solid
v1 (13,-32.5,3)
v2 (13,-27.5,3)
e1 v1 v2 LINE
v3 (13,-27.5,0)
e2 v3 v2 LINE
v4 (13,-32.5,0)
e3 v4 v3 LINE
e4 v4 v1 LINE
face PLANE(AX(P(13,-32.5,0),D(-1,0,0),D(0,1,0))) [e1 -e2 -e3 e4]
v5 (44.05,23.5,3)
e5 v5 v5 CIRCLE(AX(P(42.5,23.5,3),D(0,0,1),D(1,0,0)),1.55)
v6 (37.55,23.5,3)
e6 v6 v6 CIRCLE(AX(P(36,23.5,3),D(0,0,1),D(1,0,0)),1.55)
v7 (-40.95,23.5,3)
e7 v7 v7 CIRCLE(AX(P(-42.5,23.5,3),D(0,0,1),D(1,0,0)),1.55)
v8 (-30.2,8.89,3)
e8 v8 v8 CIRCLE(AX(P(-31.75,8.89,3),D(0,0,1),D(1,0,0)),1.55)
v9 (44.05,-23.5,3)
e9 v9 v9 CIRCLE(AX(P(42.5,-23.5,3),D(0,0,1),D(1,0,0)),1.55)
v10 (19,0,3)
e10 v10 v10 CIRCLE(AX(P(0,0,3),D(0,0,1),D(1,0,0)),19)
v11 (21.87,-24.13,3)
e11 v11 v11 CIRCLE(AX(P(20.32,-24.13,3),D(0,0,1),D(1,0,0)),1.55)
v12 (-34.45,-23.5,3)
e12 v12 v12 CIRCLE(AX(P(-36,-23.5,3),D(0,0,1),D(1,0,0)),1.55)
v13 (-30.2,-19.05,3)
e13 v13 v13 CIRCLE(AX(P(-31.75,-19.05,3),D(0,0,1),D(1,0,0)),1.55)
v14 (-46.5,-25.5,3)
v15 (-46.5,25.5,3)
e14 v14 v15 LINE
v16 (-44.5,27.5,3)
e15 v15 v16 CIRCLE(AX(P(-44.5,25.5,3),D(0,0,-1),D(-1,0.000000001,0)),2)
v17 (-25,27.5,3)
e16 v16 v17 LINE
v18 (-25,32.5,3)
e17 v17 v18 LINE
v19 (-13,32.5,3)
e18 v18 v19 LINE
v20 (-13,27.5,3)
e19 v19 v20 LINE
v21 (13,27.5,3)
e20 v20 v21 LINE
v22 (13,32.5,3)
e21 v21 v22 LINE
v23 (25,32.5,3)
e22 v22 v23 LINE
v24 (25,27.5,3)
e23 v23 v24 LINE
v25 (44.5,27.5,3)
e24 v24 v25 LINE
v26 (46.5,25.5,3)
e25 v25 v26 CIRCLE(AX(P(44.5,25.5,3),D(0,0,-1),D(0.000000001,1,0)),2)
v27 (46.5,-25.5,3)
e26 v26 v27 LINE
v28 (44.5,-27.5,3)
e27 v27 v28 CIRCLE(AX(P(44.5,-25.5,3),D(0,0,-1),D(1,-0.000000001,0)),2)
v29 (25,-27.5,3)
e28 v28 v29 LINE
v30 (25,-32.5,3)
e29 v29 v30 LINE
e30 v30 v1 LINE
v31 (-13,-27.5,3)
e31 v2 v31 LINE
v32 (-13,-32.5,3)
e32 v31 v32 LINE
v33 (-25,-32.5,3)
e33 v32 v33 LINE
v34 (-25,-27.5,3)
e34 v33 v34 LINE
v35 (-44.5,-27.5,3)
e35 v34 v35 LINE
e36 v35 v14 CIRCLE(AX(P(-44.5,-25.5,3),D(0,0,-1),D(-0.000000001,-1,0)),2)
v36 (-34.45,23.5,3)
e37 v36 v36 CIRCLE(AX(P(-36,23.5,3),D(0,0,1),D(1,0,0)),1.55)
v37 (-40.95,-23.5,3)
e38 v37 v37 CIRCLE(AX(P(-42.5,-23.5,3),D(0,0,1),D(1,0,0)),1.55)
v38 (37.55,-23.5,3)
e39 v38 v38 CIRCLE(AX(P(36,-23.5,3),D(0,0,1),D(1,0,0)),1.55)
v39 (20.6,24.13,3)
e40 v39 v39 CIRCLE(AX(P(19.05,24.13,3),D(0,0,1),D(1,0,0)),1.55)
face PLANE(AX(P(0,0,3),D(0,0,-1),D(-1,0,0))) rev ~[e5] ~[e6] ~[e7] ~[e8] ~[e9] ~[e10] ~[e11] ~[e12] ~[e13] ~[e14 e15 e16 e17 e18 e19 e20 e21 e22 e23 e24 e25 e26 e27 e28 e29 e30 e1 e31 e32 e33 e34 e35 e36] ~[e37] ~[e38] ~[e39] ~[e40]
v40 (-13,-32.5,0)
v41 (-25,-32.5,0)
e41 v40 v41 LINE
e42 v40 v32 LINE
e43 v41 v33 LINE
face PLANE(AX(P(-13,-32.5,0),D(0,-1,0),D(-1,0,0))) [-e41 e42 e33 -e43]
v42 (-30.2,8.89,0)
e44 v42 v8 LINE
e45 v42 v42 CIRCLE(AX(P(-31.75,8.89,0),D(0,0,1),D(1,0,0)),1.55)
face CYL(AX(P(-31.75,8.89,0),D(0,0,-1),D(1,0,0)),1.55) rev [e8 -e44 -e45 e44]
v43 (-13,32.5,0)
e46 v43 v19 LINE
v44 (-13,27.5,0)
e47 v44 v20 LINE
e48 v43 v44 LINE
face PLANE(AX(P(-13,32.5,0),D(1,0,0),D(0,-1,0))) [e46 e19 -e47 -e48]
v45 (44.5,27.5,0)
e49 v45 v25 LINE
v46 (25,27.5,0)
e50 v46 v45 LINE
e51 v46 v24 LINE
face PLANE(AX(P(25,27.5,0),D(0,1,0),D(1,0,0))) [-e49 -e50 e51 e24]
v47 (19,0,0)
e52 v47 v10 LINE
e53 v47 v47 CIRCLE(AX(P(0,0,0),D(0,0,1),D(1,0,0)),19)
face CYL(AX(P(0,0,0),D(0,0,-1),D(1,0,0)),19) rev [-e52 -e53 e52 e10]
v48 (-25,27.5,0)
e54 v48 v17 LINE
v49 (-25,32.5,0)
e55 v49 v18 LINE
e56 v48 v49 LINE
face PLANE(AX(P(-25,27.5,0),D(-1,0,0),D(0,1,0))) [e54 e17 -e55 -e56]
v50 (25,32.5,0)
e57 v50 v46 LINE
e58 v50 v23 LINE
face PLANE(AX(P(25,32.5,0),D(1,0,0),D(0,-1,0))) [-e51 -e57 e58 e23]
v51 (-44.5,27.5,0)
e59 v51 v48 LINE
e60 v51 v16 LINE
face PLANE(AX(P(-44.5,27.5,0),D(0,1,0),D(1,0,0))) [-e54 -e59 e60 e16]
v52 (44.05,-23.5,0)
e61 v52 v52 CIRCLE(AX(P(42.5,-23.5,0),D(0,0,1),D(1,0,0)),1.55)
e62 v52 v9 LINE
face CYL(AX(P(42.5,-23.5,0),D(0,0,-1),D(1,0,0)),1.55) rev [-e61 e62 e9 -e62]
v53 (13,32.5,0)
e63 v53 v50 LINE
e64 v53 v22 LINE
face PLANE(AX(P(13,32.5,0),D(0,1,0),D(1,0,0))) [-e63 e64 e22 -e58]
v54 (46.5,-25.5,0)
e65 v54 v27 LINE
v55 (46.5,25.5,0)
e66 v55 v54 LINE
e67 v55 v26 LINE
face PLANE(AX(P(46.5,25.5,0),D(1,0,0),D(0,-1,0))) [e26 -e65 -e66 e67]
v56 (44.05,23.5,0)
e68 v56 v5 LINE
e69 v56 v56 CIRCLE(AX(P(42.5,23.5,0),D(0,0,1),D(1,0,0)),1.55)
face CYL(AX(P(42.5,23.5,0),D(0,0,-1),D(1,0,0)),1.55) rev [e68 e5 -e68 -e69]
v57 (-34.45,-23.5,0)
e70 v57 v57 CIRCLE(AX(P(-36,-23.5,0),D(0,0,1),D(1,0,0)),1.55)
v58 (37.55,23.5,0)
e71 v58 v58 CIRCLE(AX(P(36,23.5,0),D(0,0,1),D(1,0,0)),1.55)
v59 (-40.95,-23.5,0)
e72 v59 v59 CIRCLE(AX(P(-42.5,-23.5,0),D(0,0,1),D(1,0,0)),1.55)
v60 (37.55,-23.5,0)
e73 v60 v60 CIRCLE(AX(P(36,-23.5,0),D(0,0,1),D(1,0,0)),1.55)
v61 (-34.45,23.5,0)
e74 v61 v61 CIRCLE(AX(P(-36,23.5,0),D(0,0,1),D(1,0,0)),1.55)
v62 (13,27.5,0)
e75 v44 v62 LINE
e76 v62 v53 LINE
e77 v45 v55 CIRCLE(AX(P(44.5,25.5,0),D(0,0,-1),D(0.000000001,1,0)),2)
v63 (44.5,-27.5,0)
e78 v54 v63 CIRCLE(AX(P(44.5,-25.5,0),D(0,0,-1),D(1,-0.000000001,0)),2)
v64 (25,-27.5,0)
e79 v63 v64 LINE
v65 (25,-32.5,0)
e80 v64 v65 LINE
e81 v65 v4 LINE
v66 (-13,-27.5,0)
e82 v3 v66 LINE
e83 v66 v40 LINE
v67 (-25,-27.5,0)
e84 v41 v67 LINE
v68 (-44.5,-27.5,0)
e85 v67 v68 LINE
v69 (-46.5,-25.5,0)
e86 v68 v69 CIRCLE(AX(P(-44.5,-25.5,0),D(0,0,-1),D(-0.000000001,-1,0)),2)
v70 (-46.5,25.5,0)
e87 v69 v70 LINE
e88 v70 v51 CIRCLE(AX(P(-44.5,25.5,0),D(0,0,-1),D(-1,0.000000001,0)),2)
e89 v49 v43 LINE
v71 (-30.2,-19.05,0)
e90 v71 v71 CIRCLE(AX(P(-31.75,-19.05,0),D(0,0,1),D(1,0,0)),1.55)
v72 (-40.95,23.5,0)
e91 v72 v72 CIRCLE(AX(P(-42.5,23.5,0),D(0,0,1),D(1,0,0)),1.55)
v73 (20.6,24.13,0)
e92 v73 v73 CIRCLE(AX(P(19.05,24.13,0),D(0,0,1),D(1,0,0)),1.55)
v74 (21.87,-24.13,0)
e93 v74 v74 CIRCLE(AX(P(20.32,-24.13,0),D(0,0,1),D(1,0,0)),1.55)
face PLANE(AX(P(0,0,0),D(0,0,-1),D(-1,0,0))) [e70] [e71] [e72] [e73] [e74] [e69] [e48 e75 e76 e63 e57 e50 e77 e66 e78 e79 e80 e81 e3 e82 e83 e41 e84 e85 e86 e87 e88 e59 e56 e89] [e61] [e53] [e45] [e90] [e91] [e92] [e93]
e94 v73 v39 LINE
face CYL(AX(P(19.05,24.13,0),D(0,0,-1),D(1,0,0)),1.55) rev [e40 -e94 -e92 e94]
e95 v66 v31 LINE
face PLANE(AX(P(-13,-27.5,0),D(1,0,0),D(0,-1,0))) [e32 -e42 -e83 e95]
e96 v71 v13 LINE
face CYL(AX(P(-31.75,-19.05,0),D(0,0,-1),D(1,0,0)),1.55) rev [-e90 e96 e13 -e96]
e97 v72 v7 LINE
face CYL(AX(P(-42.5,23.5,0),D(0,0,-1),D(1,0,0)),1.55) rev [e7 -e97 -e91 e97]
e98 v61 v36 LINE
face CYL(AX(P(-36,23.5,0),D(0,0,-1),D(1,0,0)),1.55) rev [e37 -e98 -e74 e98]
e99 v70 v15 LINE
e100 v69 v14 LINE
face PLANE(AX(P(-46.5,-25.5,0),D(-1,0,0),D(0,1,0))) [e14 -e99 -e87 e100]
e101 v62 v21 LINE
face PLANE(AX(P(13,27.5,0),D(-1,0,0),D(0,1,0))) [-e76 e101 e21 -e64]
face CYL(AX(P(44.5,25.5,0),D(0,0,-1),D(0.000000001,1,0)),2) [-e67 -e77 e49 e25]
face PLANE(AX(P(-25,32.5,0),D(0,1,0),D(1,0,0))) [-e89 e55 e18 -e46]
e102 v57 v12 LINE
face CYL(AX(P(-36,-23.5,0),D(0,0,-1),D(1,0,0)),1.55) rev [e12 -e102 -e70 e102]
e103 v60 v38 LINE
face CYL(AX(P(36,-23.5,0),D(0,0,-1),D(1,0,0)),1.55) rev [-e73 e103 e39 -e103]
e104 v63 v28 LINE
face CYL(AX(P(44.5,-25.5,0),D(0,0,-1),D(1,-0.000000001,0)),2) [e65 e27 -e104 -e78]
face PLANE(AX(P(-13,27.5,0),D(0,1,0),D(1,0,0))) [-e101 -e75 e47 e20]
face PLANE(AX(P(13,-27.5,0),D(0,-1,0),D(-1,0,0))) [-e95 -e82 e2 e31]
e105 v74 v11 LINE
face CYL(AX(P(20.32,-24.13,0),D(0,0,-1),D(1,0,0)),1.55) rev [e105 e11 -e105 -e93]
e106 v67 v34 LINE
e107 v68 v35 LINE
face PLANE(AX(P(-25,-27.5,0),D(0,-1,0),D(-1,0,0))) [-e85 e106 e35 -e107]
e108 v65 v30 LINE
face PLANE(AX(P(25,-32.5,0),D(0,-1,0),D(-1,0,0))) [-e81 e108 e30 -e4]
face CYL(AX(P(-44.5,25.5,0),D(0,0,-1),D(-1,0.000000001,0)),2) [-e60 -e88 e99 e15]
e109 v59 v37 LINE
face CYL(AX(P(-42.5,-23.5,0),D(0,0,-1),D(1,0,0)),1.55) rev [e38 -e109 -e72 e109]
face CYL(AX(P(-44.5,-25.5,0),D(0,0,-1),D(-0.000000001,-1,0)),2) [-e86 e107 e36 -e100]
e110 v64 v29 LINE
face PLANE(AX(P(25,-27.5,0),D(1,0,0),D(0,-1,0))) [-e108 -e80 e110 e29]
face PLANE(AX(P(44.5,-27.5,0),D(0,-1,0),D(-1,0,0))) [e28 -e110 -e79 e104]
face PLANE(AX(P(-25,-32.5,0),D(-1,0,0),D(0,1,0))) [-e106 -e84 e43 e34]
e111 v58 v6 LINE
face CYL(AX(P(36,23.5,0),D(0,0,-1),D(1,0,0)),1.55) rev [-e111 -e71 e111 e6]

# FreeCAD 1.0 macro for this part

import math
import FreeCAD as App
import Part
import Sketcher

doc = App.newDocument("Part")
body = doc.addObject("PartDesign::Body", "Body")

sketch1 = body.newObject("Sketcher::SketchObject", "Sketch")
sketch1.AttachmentSupport = (doc.getObject("XY_Plane"), [""])
sketch1.MapMode = "FlatFace"
sketch1.addGeometry([
    Part.LineSegment(App.Vector(-25, -27.5, 0), App.Vector(-25, -32.5, 0)),
    Part.LineSegment(App.Vector(-25, -32.5, 0), App.Vector(-13, -32.5, 0)),
    Part.LineSegment(App.Vector(-13, -32.5, 0), App.Vector(-13, -27.5, 0)),
    Part.LineSegment(App.Vector(-13, -27.5, 0), App.Vector(13, -27.5, 0)),
    Part.LineSegment(App.Vector(13, -27.5, 0), App.Vector(13, -32.5, 0)),
    Part.LineSegment(App.Vector(13, -32.5, 0), App.Vector(25, -32.5, 0)),
    Part.LineSegment(App.Vector(25, -32.5, 0), App.Vector(25, -27.5, 0)),
    Part.LineSegment(App.Vector(25, -27.5, 0), App.Vector(44.5, -27.5, 0)),
    Part.ArcOfCircle(Part.Circle(App.Vector(44.5, -25.5, 0), App.Vector(0, 0, 1), 2), math.radians(-90), math.radians(0)),
    Part.LineSegment(App.Vector(46.5, -25.5, 0), App.Vector(46.5, 25.5, 0)),
    Part.ArcOfCircle(Part.Circle(App.Vector(44.5, 25.5, 0), App.Vector(0, 0, 1), 2), math.radians(0), math.radians(90)),
    Part.LineSegment(App.Vector(44.5, 27.5, 0), App.Vector(25, 27.5, 0)),
    Part.LineSegment(App.Vector(25, 27.5, 0), App.Vector(25, 32.5, 0)),
    Part.LineSegment(App.Vector(25, 32.5, 0), App.Vector(13, 32.5, 0)),
    Part.LineSegment(App.Vector(13, 32.5, 0), App.Vector(13, 27.5, 0)),
    Part.LineSegment(App.Vector(13, 27.5, 0), App.Vector(-13, 27.5, 0)),
    Part.LineSegment(App.Vector(-13, 27.5, 0), App.Vector(-13, 32.5, 0)),
    Part.LineSegment(App.Vector(-13, 32.5, 0), App.Vector(-25, 32.5, 0)),
    Part.LineSegment(App.Vector(-25, 32.5, 0), App.Vector(-25, 27.5, 0)),
    Part.LineSegment(App.Vector(-25, 27.5, 0), App.Vector(-44.5, 27.5, 0)),
    Part.ArcOfCircle(Part.Circle(App.Vector(-44.5, 25.5, 0), App.Vector(0, 0, 1), 2), math.radians(90), math.radians(180)),
    Part.LineSegment(App.Vector(-46.5, 25.5, 0), App.Vector(-46.5, -25.5, 0)),
    Part.ArcOfCircle(Part.Circle(App.Vector(-44.5, -25.5, 0), App.Vector(0, 0, 1), 2), math.radians(-180), math.radians(-90)),
    Part.LineSegment(App.Vector(-44.5, -27.5, 0), App.Vector(-25, -27.5, 0)),
    Part.Circle(App.Vector(42.5, -23.5, 0), App.Vector(0, 0, 1), 1.6),
    Part.Circle(App.Vector(36, -23.5, 0), App.Vector(0, 0, 1), 1.6),
    Part.Circle(App.Vector(20.3, -24.1, 0), App.Vector(0, 0, 1), 1.6),
    Part.Circle(App.Vector(-36, -23.5, 0), App.Vector(0, 0, 1), 1.6),
    Part.Circle(App.Vector(-42.5, -23.5, 0), App.Vector(0, 0, 1), 1.6),
    Part.Circle(App.Vector(-31.8, -19.1, 0), App.Vector(0, 0, 1), 1.6),
    Part.Circle(App.Vector(0, 0, 0), App.Vector(0, 0, 1), 19),
    Part.Circle(App.Vector(42.5, 23.5, 0), App.Vector(0, 0, 1), 1.6),
    Part.Circle(App.Vector(36, 23.5, 0), App.Vector(0, 0, 1), 1.6),
    Part.Circle(App.Vector(19.1, 24.1, 0), App.Vector(0, 0, 1), 1.6),
    Part.Circle(App.Vector(-31.8, 8.9, 0), App.Vector(0, 0, 1), 1.6),
    Part.Circle(App.Vector(-36, 23.5, 0), App.Vector(0, 0, 1), 1.6),
    Part.Circle(App.Vector(-42.5, 23.5, 0), App.Vector(0, 0, 1), 1.6),
], False)
sketch1.addConstraint([
    Sketcher.Constraint("Coincident", 0, 2, 1, 1),
    Sketcher.Constraint("Coincident", 1, 2, 2, 1),
    Sketcher.Constraint("Coincident", 2, 2, 3, 1),
    Sketcher.Constraint("Coincident", 3, 2, 4, 1),
    Sketcher.Constraint("Coincident", 4, 2, 5, 1),
    Sketcher.Constraint("Coincident", 5, 2, 6, 1),
    Sketcher.Constraint("Coincident", 6, 2, 7, 1),
    Sketcher.Constraint("Tangent", 7, 2, 8, 1),
    Sketcher.Constraint("Tangent", 8, 2, 9, 1),
    Sketcher.Constraint("Tangent", 9, 2, 10, 1),
    Sketcher.Constraint("Tangent", 10, 2, 11, 1),
    Sketcher.Constraint("Coincident", 11, 2, 12, 1),
    Sketcher.Constraint("Coincident", 12, 2, 13, 1),
    Sketcher.Constraint("Coincident", 13, 2, 14, 1),
    Sketcher.Constraint("Coincident", 14, 2, 15, 1),
    Sketcher.Constraint("Coincident", 15, 2, 16, 1),
    Sketcher.Constraint("Coincident", 16, 2, 17, 1),
    Sketcher.Constraint("Coincident", 17, 2, 18, 1),
    Sketcher.Constraint("Coincident", 18, 2, 19, 1),
    Sketcher.Constraint("Tangent", 19, 2, 20, 1),
    Sketcher.Constraint("Tangent", 20, 2, 21, 1),
    Sketcher.Constraint("Tangent", 21, 2, 22, 1),
    Sketcher.Constraint("Tangent", 22, 2, 23, 1),
    Sketcher.Constraint("Coincident", 23, 2, 0, 1),
    Sketcher.Constraint("Vertical", 0),
    Sketcher.Constraint("Horizontal", 1),
    Sketcher.Constraint("Vertical", 2),
    Sketcher.Constraint("Horizontal", 3),
    Sketcher.Constraint("Vertical", 4),
    Sketcher.Constraint("Horizontal", 5),
    Sketcher.Constraint("Vertical", 6),
    Sketcher.Constraint("Horizontal", 7),
    Sketcher.Constraint("Vertical", 9),
    Sketcher.Constraint("Horizontal", 11),
    Sketcher.Constraint("Vertical", 12),
    Sketcher.Constraint("Horizontal", 13),
    Sketcher.Constraint("Vertical", 14),
    Sketcher.Constraint("Horizontal", 15),
    Sketcher.Constraint("Vertical", 16),
    Sketcher.Constraint("Horizontal", 17),
    Sketcher.Constraint("Vertical", 18),
    Sketcher.Constraint("Horizontal", 19),
    Sketcher.Constraint("Vertical", 21),
    Sketcher.Constraint("Horizontal", 23),
    Sketcher.Constraint("Coincident", 30, 3, -1, 1),
    Sketcher.Constraint("Equal", 8, 10),
    Sketcher.Constraint("Equal", 10, 20),
    Sketcher.Constraint("Equal", 20, 22),
    Sketcher.Constraint("Equal", 24, 25),
    Sketcher.Constraint("Equal", 25, 26),
    Sketcher.Constraint("Equal", 26, 27),
    Sketcher.Constraint("Equal", 27, 28),
    Sketcher.Constraint("Equal", 28, 29),
    Sketcher.Constraint("Equal", 29, 31),
    Sketcher.Constraint("Equal", 31, 32),
    Sketcher.Constraint("Equal", 32, 33),
    Sketcher.Constraint("Equal", 33, 34),
    Sketcher.Constraint("Equal", 34, 35),
    Sketcher.Constraint("Equal", 35, 36),
    Sketcher.Constraint("Symmetric", 8, 3, 20, 3, -1, 1),
    Sketcher.Constraint("Symmetric", 28, 3, 31, 3, -1, 1),
    Sketcher.Constraint("Symmetric", 27, 3, 32, 3, -1, 1),
    Sketcher.Constraint("Symmetric", 25, 3, 35, 3, -1, 1),
    Sketcher.Constraint("Symmetric", 24, 3, 36, 3, -1, 1),
    Sketcher.Constraint("Symmetric", 0, 2, 12, 2, -1, 1),
    Sketcher.Constraint("Symmetric", 2, 2, 14, 2, -1, 1),
    Sketcher.Constraint("Symmetric", 4, 2, 16, 2, -1, 1),
    Sketcher.Constraint("Symmetric", 25, 3, 27, 3, -2),
    Sketcher.Constraint("Symmetric", 24, 3, 28, 3, -2),
    Sketcher.Constraint("Symmetric", 1, 2, 4, 2, -2),
    Sketcher.Constraint("Symmetric", 11, 2, 18, 2, -2),
    Sketcher.Constraint("Symmetric", 6, 2, 23, 2, -2),
    Sketcher.Constraint("Horizontal", 24, 3, 25, 3),
    Sketcher.Constraint("Horizontal", 3, 2, 6, 2),
    Sketcher.Constraint("Vertical", 29, 3, 34, 3),
    Sketcher.Constraint("Diameter", 30, 38.0),
    Sketcher.Constraint("Radius", 8, 2.0),
    Sketcher.Constraint("Diameter", 24, 3.1),
    Sketcher.Constraint("DistanceX", 1, 1, 1, 2, 12.0),
    Sketcher.Constraint("DistanceX", 3, 1, 3, 2, 26.0),
    Sketcher.Constraint("DistanceY", 0, 2, 0, 1, 5.0),
    Sketcher.Constraint("DistanceY", 9, 1, 9, 2, 51.0),
    Sketcher.Constraint("DistanceX", 7, 1, 7, 2, 19.5),
    Sketcher.Constraint("DistanceX", -1, 1, 25, 3, 36.0),
    Sketcher.Constraint("DistanceX", 24, 3, 8, 3, 2.0),
    Sketcher.Constraint("DistanceY", 8, 3, 24, 3, 2.0),
    Sketcher.Constraint("DistanceX", -1, 1, 26, 3, 20.32),
    Sketcher.Constraint("DistanceY", 26, 3, -1, 1, 24.13),
    Sketcher.Constraint("DistanceX", 29, 3, -1, 1, 31.75),
    Sketcher.Constraint("DistanceY", 29, 3, -1, 1, 19.05),
    Sketcher.Constraint("DistanceX", -1, 1, 33, 3, 19.05),
    Sketcher.Constraint("DistanceY", -1, 1, 33, 3, 24.13),
    Sketcher.Constraint("DistanceY", -1, 1, 34, 3, 8.89),
])
pad1 = body.newObject("PartDesign::Pad", "Pad")
pad1.Profile = sketch1
pad1.Length = 3

doc.recompute()
